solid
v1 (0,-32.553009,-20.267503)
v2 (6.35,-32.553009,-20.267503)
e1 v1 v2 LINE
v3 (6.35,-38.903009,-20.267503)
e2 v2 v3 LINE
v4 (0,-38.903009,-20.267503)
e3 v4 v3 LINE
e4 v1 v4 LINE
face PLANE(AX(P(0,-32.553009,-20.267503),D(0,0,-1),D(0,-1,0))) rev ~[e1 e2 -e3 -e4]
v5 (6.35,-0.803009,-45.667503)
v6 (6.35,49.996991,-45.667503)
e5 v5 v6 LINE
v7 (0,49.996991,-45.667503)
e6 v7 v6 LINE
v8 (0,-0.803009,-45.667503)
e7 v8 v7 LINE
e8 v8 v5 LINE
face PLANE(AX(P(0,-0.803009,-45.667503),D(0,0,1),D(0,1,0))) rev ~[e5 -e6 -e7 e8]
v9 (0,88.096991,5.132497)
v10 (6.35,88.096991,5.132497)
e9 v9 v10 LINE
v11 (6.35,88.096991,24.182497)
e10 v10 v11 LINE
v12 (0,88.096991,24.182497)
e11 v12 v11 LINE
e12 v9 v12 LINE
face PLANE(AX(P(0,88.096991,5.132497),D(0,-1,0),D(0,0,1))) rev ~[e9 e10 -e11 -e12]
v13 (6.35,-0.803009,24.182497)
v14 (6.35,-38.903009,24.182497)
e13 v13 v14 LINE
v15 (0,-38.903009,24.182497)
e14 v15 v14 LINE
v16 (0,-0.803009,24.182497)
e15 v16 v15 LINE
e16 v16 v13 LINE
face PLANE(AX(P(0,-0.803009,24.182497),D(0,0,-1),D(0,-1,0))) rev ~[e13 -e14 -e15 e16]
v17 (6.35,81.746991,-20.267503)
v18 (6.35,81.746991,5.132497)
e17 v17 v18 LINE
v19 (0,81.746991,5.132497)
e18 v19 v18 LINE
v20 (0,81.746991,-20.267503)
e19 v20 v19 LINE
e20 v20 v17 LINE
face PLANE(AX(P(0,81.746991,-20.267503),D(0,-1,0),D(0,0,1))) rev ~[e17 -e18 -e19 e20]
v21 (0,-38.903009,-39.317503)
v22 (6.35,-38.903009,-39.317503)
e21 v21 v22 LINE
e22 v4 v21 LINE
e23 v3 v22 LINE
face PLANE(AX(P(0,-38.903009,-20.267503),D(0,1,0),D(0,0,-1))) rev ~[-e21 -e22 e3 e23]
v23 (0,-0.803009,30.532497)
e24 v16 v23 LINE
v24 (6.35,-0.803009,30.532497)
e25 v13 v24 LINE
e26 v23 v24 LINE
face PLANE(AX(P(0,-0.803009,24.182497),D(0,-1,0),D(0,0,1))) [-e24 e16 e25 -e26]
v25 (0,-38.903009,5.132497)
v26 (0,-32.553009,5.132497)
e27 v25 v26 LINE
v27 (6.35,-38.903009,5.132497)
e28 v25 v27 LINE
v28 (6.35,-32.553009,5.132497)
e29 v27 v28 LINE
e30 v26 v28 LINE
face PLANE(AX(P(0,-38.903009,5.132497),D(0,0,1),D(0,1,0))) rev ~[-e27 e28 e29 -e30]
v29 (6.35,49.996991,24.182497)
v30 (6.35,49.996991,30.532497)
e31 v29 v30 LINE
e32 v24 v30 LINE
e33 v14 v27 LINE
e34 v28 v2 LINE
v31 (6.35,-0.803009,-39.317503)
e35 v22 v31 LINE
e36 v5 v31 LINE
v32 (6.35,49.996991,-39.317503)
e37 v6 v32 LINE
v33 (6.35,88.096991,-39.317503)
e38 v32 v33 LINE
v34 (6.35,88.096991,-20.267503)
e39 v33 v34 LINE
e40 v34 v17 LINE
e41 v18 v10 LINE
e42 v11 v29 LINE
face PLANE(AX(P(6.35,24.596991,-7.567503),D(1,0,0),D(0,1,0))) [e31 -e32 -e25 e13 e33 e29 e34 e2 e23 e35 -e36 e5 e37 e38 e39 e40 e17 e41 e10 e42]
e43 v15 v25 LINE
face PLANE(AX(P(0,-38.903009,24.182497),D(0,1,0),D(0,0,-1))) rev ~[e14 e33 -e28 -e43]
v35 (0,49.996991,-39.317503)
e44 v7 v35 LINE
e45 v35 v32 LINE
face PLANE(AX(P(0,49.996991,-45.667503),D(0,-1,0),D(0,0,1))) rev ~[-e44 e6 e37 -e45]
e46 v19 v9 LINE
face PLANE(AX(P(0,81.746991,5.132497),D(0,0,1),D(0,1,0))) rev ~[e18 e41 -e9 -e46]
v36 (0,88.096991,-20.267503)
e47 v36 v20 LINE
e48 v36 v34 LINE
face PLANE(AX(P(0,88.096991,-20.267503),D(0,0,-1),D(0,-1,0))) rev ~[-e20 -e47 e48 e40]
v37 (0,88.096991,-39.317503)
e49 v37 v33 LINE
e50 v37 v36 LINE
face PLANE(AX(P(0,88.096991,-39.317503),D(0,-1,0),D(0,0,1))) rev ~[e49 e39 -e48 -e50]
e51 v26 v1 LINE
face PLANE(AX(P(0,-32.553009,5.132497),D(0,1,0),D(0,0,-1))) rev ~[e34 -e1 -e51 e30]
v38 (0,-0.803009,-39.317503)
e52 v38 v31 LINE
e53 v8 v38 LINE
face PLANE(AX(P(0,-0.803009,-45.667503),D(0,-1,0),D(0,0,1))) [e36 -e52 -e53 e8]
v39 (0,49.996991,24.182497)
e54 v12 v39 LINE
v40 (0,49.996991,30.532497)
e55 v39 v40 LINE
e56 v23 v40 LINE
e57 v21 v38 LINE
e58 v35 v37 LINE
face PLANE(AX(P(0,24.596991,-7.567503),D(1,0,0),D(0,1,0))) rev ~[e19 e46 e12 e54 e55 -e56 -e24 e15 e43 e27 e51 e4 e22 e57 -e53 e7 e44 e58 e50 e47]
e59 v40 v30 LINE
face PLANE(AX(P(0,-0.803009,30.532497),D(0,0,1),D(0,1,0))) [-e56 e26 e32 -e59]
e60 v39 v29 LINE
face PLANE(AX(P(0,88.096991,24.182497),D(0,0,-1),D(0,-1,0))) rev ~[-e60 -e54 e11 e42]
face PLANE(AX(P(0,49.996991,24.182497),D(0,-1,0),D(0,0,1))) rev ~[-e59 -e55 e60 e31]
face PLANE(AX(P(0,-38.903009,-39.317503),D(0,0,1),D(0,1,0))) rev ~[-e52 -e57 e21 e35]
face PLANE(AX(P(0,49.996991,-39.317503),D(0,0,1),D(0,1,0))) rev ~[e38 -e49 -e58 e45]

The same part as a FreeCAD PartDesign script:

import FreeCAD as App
import Part
import Sketcher
from FreeCAD import Vector
Q = App.Units.Quantity


def add_polygon(sketch, points):
    """Adds a closed chain of lines whose ends are joined by coincident constraints."""
    first, n = sketch.GeometryCount, len(points)
    for a, b in zip(points, points[1:] + points[:1]):
        sketch.addGeometry(Part.LineSegment(App.Vector(*a, 0), App.Vector(*b, 0)), False)
    for i in range(n):
        sketch.addConstraint(Sketcher.Constraint("Coincident", first + i, 2, first + (i + 1) % n, 1))

doc = App.newDocument("Part")
body = doc.addObject("PartDesign::Body", "Body")

# Sketch on YZ plane
sketch1 = body.newObject("Sketcher::SketchObject", "Sketch")
sketch1.AttachmentSupport = (doc.getObject("YZ_Plane"), [""])
sketch1.MapMode = "FlatFace"
add_polygon(sketch1, [(-39, 24), (-39, 5), (-33, 5), (-33, -20), (-39, -20), (-39, -39), (-1, -39), (-1, -46), (50, -46), (50, -39), (88, -39), (88, -20), (82, -20), (82, 5), (88, 5), (88, 24), (50, 24), (50, 31), (-1, 31), (-1, 24)])  # lines 0-19
sketch1.addConstraint([
    Sketcher.Constraint("Vertical", 0),
    Sketcher.Constraint("Horizontal", 1),
    Sketcher.Constraint("Vertical", 2),
    Sketcher.Constraint("Horizontal", 3),
    Sketcher.Constraint("Vertical", 4),
    Sketcher.Constraint("Horizontal", 5),
    Sketcher.Constraint("Vertical", 6),
    Sketcher.Constraint("Horizontal", 7),
    Sketcher.Constraint("Vertical", 8),
    Sketcher.Constraint("Horizontal", 9),
    Sketcher.Constraint("Vertical", 10),
    Sketcher.Constraint("Horizontal", 11),
    Sketcher.Constraint("Vertical", 12),
    Sketcher.Constraint("Horizontal", 13),
    Sketcher.Constraint("Vertical", 14),
    Sketcher.Constraint("Horizontal", 15),
    Sketcher.Constraint("Vertical", 16),
    Sketcher.Constraint("Horizontal", 17),
    Sketcher.Constraint("Vertical", 18),
    Sketcher.Constraint("Horizontal", 19),
    Sketcher.Constraint("Horizontal", 5, 2, 8, 2),
    Sketcher.Constraint("Horizontal", 3, 2, 10, 2),
    Sketcher.Constraint("Horizontal", 1, 2, 12, 2),
    Sketcher.Constraint("Horizontal", 15, 2, 18, 2),
    Sketcher.Constraint("Vertical", 0, 2, 3, 2),
    Sketcher.Constraint("Vertical", 10, 2, 13, 2),
    Sketcher.Constraint("Vertical", 8, 2, 15, 2),
    Sketcher.Constraint("Vertical", 6, 2, 17, 2),
    Sketcher.Constraint("Equal", 5, 9),
    Sketcher.Constraint("Equal", 3, 11),
    Sketcher.Constraint("Equal", 0, 4),
    Sketcher.Constraint("Equal", 13, 6),
    Sketcher.Constraint("Equal", 8, 16),
    Sketcher.Constraint("DistanceX", 7, 1, 7, 2, Q("2 in")),
    Sketcher.Constraint("DistanceY", 2, 2, 2, 1, Q("1 in")),
    Sketcher.Constraint("DistanceX", 5, 1, 5, 2, Q("1.5 in")),
    Sketcher.Constraint("DistanceY", 6, 2, 2, 2, Q("1 in")),
    Sketcher.Constraint("DistanceX", 1, 1, 1, 2, Q("0.25 in")),
    Sketcher.Constraint("DistanceX", 0, 2, -1, 1, 38.903009),
    Sketcher.Constraint("DistanceY", -1, 1, 0, 2, 5.132497),
])
pad1 = body.newObject("PartDesign::Pad", "Pad")
pad1.Profile = sketch1
pad1.Length = Q("0.25 in")

doc.recompute()
